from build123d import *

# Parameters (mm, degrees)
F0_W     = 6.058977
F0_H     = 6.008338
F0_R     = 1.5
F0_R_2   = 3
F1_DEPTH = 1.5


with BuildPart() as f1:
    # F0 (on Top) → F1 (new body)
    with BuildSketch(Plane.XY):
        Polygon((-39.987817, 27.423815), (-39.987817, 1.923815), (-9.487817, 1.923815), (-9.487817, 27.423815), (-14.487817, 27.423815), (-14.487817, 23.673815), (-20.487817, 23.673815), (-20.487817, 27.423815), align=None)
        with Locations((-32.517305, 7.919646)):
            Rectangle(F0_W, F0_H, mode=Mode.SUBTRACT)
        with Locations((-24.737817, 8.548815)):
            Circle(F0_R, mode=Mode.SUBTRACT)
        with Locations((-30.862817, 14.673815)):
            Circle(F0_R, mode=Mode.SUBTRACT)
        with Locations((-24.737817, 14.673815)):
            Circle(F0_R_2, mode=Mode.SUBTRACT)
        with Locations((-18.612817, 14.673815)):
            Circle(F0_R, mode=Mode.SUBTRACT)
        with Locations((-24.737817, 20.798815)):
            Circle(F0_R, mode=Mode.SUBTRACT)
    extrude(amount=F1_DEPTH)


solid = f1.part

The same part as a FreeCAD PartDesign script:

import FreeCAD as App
import Part
import Sketcher
from FreeCAD import Vector

doc = App.newDocument("Part")
params = doc.addObject("Spreadsheet::Sheet", "Params")
for row, (alias, value) in enumerate([
    ("sketch1_diameter", "3 mm"),
    ("sketch1_diameter2", "6 mm"),
    ("sketch1_width", "5 mm"),
    ("sketch1_width2", "6 mm"),
    ("sketch1_width3", "30.5 mm"),
    ("pad1_length", "1.5 mm"),
], start=1):
    params.set(f"A{row}", alias)
    params.set(f"B{row}", "=" + value)
    params.setAlias(f"B{row}", alias)

body = doc.addObject("PartDesign::Body", "Body")

# Sketch on XY plane
sketch1 = body.newObject("Sketcher::SketchObject", "Sketch")
sketch1.AttachmentSupport = (doc.getObject("XY_Plane"), [""])
sketch1.MapMode = "FlatFace"
sketch1.addGeometry(Part.LineSegment(Vector(-40, 27.4, 0), Vector(-40, 1.9, 0)), False)
sketch1.addGeometry(Part.LineSegment(Vector(-40, 1.9, 0), Vector(-9.5, 1.9, 0)), False)
sketch1.addGeometry(Part.LineSegment(Vector(-9.5, 1.9, 0), Vector(-9.5, 27.4, 0)), False)
sketch1.addGeometry(Part.LineSegment(Vector(-9.5, 27.4, 0), Vector(-14.5, 27.4, 0)), False)
sketch1.addGeometry(Part.LineSegment(Vector(-14.5, 27.4, 0), Vector(-14.5, 23.7, 0)), False)
sketch1.addGeometry(Part.LineSegment(Vector(-14.5, 23.7, 0), Vector(-20.5, 23.7, 0)), False)
sketch1.addGeometry(Part.LineSegment(Vector(-20.5, 23.7, 0), Vector(-20.5, 27.4, 0)), False)
sketch1.addGeometry(Part.LineSegment(Vector(-20.5, 27.4, 0), Vector(-40, 27.4, 0)), False)
sketch1.addGeometry(Part.LineSegment(Vector(-29.5, 4.9, 0), Vector(-35.5, 4.9, 0)), False)
sketch1.addGeometry(Part.LineSegment(Vector(-35.5, 4.9, 0), Vector(-35.5, 10.9, 0)), False)
sketch1.addGeometry(Part.LineSegment(Vector(-35.5, 10.9, 0), Vector(-29.5, 10.9, 0)), False)
sketch1.addGeometry(Part.LineSegment(Vector(-29.5, 10.9, 0), Vector(-29.5, 4.9, 0)), False)
sketch1.addGeometry(Part.Circle(Vector(-24.7, 8.5, 0), Vector(0, 0, 1), 1.5), False)
sketch1.addGeometry(Part.Circle(Vector(-30.9, 14.7, 0), Vector(0, 0, 1), 1.5), False)
sketch1.addGeometry(Part.Circle(Vector(-24.7, 14.7, 0), Vector(0, 0, 1), 3), False)
sketch1.addGeometry(Part.Circle(Vector(-18.6, 14.7, 0), Vector(0, 0, 1), 1.5), False)
sketch1.addGeometry(Part.Circle(Vector(-24.7, 20.8, 0), Vector(0, 0, 1), 1.5), False)
sketch1.addConstraint(Sketcher.Constraint("Coincident", 0, 2, 1, 1))
sketch1.addConstraint(Sketcher.Constraint("Coincident", 1, 2, 2, 1))
sketch1.addConstraint(Sketcher.Constraint("Coincident", 2, 2, 3, 1))
sketch1.addConstraint(Sketcher.Constraint("Coincident", 3, 2, 4, 1))
sketch1.addConstraint(Sketcher.Constraint("Coincident", 4, 2, 5, 1))
sketch1.addConstraint(Sketcher.Constraint("Coincident", 5, 2, 6, 1))
sketch1.addConstraint(Sketcher.Constraint("Coincident", 6, 2, 7, 1))
sketch1.addConstraint(Sketcher.Constraint("Coincident", 7, 2, 0, 1))
sketch1.addConstraint(Sketcher.Constraint("Coincident", 8, 2, 9, 1))
sketch1.addConstraint(Sketcher.Constraint("Coincident", 9, 2, 10, 1))
sketch1.addConstraint(Sketcher.Constraint("Coincident", 10, 2, 11, 1))
sketch1.addConstraint(Sketcher.Constraint("Coincident", 11, 2, 8, 1))
sketch1.addConstraint(Sketcher.Constraint("Vertical", 0))
sketch1.addConstraint(Sketcher.Constraint("Horizontal", 1))
sketch1.addConstraint(Sketcher.Constraint("Vertical", 2))
sketch1.addConstraint(Sketcher.Constraint("Horizontal", 3))
sketch1.addConstraint(Sketcher.Constraint("Vertical", 4))
sketch1.addConstraint(Sketcher.Constraint("Horizontal", 5))
sketch1.addConstraint(Sketcher.Constraint("Vertical", 6))
sketch1.addConstraint(Sketcher.Constraint("Horizontal", 7))
sketch1.addConstraint(Sketcher.Constraint("Horizontal", 8))
sketch1.addConstraint(Sketcher.Constraint("Vertical", 9))
sketch1.addConstraint(Sketcher.Constraint("Horizontal", 10))
sketch1.addConstraint(Sketcher.Constraint("Vertical", 11))
sketch1.addConstraint(Sketcher.Constraint("Equal", 12, 13))
sketch1.addConstraint(Sketcher.Constraint("Equal", 13, 15))
sketch1.addConstraint(Sketcher.Constraint("Equal", 15, 16))
sketch1.addConstraint(Sketcher.Constraint("Horizontal", 13, 3, 14, 3))
sketch1.addConstraint(Sketcher.Constraint("Horizontal", 14, 3, 15, 3))
sketch1.addConstraint(Sketcher.Constraint("Horizontal", 3, 2, 6, 2))
sketch1.addConstraint(Sketcher.Constraint("Vertical", 12, 3, 14, 3))
sketch1.addConstraint(Sketcher.Constraint("Vertical", 14, 3, 16, 3))
sketch1.addConstraint(Sketcher.Constraint("Diameter", 12, 3.0))
sketch1.addConstraint(Sketcher.Constraint("Diameter", 14, 6.0))
sketch1.addConstraint(Sketcher.Constraint("DistanceX", 3, 2, 3, 1, 5.0))
sketch1.addConstraint(Sketcher.Constraint("DistanceX", 5, 2, 5, 1, 6.0))
sketch1.addConstraint(Sketcher.Constraint("DistanceX", 1, 1, 1, 2, 30.5))
sketch1.addConstraint(Sketcher.Constraint("DistanceY", 0, 2, 0, 1, 25.5))
sketch1.addConstraint(Sketcher.Constraint("DistanceY", 15, 3, 4, 2, 9.0))
sketch1.addConstraint(Sketcher.Constraint("DistanceY", 0, 2, 9, 2, 9.0))
sketch1.addConstraint(Sketcher.Constraint("DistanceY", 4, 2, 4, 1, 3.75))
sketch1.addConstraint(Sketcher.Constraint("DistanceX", 13, 3, 15, 3, 12.25))
sketch1.addConstraint(Sketcher.Constraint("DistanceY", 12, 3, 16, 3, 12.25))
sketch1.addConstraint(Sketcher.Constraint("DistanceX", 0, 2, 12, 3, 15.25))
sketch1.addConstraint(Sketcher.Constraint("DistanceX", 10, 2, 12, 3, 4.75))
sketch1.addConstraint(Sketcher.Constraint("DistanceX", 13, 3, 12, 3, 6.125))
sketch1.addConstraint(Sketcher.Constraint("DistanceY", 12, 3, 13, 3, 6.125))
sketch1.addConstraint(Sketcher.Constraint("DistanceX", 8, 2, 8, 1, 6.058977))
sketch1.addConstraint(Sketcher.Constraint("DistanceY", 9, 1, 9, 2, 6.008338))
sketch1.addConstraint(Sketcher.Constraint("DistanceX", 12, 3, -1, 1, 24.737817))
sketch1.addConstraint(Sketcher.Constraint("DistanceY", -1, 1, 12, 3, 8.548815))
sketch1.setExpression("Constraints[32]", "Params.sketch1_diameter")
sketch1.setExpression("Constraints[33]", "Params.sketch1_diameter2")
sketch1.setExpression("Constraints[34]", "Params.sketch1_width")
sketch1.setExpression("Constraints[35]", "Params.sketch1_width2")
sketch1.setExpression("Constraints[36]", "Params.sketch1_width3")
pad1 = body.newObject("PartDesign::Pad", "Pad")
pad1.Profile = sketch1
pad1.setExpression("Length", "Params.pad1_length")

doc.recompute()
